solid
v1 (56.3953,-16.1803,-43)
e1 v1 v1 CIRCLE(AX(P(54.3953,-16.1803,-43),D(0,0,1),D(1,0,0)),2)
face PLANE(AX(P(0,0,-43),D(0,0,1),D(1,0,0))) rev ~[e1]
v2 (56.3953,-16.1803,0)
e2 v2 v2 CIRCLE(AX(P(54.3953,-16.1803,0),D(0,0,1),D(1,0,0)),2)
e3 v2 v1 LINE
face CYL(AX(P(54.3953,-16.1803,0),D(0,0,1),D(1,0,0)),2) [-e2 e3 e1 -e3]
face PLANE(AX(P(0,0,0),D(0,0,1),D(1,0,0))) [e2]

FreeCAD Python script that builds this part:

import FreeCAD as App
import Part
import Sketcher
Q = App.Units.Quantity

doc = App.newDocument("Part")
body = doc.addObject("PartDesign::Body", "Body")

sketch1 = body.newObject("Sketcher::SketchObject", "Sketch")
sketch1.AttachmentSupport = (doc.getObject("XY_Plane"), [""])
sketch1.MapMode = "FlatFace"
sketch1.addGeometry(Part.Circle(App.Vector(54.4, -16.2, 0), App.Vector(0, 0, 1), 2), False)
sketch1.addConstraint(Sketcher.Constraint("Diameter", 0, Q("4 mm")))
sketch1.addConstraint(Sketcher.Constraint("DistanceX", -1, 1, 0, 3, Q("54.3953 mm")))
sketch1.addConstraint(Sketcher.Constraint("DistanceY", 0, 3, -1, 1, Q("16.1803 mm")))
pad1 = body.newObject("PartDesign::Pad", "Pad")
pad1.Profile = sketch1
pad1.Length = 43
pad1.Reversed = True

doc.recompute()
